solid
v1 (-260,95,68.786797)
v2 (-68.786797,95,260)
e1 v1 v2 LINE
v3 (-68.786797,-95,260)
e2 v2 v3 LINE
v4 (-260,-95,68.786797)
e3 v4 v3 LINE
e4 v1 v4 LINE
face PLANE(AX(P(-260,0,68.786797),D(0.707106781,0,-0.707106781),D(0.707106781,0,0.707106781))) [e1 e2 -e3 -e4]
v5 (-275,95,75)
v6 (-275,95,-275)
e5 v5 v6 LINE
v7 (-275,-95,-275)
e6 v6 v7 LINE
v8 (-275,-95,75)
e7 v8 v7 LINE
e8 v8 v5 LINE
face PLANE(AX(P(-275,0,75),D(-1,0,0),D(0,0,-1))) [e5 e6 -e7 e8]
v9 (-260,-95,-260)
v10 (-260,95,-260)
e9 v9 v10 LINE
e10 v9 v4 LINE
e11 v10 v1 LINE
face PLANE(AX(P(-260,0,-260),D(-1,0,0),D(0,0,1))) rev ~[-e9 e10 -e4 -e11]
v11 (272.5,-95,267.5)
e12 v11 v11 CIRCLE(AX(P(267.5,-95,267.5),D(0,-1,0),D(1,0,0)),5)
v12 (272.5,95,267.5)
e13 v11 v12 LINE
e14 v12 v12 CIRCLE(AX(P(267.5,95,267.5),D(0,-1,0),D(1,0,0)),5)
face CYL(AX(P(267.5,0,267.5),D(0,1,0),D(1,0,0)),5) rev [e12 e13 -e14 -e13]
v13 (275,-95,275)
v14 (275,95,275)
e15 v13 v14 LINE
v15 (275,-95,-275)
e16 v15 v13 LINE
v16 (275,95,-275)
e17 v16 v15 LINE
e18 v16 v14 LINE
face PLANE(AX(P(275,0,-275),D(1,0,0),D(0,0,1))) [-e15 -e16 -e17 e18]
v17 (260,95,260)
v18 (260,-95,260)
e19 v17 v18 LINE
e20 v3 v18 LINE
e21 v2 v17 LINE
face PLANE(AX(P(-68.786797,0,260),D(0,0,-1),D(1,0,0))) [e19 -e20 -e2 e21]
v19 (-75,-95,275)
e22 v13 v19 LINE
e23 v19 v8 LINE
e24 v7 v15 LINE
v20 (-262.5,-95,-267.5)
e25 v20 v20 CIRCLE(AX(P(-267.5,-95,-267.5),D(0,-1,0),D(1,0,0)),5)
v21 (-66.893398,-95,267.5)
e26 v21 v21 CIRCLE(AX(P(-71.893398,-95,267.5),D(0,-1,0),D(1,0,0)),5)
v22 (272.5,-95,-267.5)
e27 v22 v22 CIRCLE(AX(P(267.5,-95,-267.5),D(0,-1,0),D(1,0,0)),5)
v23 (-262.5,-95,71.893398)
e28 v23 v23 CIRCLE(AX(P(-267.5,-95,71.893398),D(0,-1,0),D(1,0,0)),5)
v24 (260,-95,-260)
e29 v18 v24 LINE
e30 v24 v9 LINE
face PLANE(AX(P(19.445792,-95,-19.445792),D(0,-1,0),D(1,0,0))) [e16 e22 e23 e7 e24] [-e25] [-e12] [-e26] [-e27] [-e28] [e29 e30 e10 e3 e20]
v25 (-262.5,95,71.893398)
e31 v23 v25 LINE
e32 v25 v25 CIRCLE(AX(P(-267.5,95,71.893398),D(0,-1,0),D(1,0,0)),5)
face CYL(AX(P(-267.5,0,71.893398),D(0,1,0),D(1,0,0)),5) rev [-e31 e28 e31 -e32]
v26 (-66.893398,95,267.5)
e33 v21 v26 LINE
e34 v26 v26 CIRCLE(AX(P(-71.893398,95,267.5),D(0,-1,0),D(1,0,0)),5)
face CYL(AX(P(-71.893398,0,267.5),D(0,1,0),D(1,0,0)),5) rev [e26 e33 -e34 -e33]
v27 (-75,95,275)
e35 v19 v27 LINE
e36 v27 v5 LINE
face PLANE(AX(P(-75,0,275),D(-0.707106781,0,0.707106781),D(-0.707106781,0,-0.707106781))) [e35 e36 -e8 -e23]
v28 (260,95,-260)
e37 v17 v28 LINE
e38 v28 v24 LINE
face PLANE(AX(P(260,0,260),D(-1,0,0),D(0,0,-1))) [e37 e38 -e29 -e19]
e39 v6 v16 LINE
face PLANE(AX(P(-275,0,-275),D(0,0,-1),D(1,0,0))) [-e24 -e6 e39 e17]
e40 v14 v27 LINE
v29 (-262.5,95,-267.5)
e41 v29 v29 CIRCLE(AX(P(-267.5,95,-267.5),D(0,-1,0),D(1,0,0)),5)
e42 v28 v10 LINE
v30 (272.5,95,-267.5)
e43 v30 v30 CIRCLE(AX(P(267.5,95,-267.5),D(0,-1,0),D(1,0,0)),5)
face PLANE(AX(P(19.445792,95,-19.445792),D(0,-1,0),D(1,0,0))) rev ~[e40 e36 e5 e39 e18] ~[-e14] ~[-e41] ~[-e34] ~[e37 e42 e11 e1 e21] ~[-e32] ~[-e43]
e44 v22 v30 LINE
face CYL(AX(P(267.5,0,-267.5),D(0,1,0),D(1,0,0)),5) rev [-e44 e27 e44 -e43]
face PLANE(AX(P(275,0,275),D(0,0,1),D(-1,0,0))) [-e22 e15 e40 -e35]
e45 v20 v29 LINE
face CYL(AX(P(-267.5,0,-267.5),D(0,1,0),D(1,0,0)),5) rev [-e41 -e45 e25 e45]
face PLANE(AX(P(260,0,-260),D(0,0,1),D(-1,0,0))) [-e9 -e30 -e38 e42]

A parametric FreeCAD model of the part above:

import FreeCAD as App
import Part
import Sketcher
from FreeCAD import Vector
Q = App.Units.Quantity

doc = App.newDocument("Part")
body = doc.addObject("PartDesign::Body", "Body")

sketch1 = doc.addObject("Sketcher::SketchObject", "Sketch")
body.addObject(sketch1)
sketch1.AttachmentSupport = (doc.XZ_Plane, [""])
sketch1.MapMode = "FlatFace"
sketch1.addGeometry([
    Part.LineSegment(Vector(-275, 75, 0), Vector(-275, -275, 0)),
    Part.LineSegment(Vector(-275, -275, 0), Vector(275, -275, 0)),
    Part.LineSegment(Vector(275, -275, 0), Vector(275, 275, 0)),
    Part.LineSegment(Vector(275, 275, 0), Vector(-75, 275, 0)),
    Part.LineSegment(Vector(-75, 275, 0), Vector(-275, 75, 0)),
    Part.Circle(Vector(-268, -268, 0), Vector(0, 0, 1), 5),
    Part.Circle(Vector(268, -268, 0), Vector(0, 0, 1), 5),
    Part.Circle(Vector(-268, 72, 0), Vector(0, 0, 1), 5),
    Part.Circle(Vector(-72, 268, 0), Vector(0, 0, 1), 5),
    Part.LineSegment(Vector(260, 260, 0), Vector(260, -260, 0)),
    Part.LineSegment(Vector(260, -260, 0), Vector(-260, -260, 0)),
    Part.LineSegment(Vector(-260, -260, 0), Vector(-260, 69, 0)),
    Part.LineSegment(Vector(-260, 69, 0), Vector(-69, 260, 0)),
    Part.LineSegment(Vector(-69, 260, 0), Vector(260, 260, 0)),
    Part.Circle(Vector(268, 268, 0), Vector(0, 0, 1), 5),
], False)
sketch1.addConstraint([
    Sketcher.Constraint("Coincident", 0, 2, 1, 1),
    Sketcher.Constraint("Coincident", 1, 2, 2, 1),
    Sketcher.Constraint("Coincident", 2, 2, 3, 1),
    Sketcher.Constraint("Coincident", 3, 2, 4, 1),
    Sketcher.Constraint("Coincident", 4, 2, 0, 1),
    Sketcher.Constraint("Coincident", 9, 2, 10, 1),
    Sketcher.Constraint("Coincident", 10, 2, 11, 1),
    Sketcher.Constraint("Coincident", 11, 2, 12, 1),
    Sketcher.Constraint("Coincident", 12, 2, 13, 1),
    Sketcher.Constraint("Coincident", 13, 2, 9, 1),
    Sketcher.Constraint("Vertical", 0),
    Sketcher.Constraint("Horizontal", 1),
    Sketcher.Constraint("Vertical", 2),
    Sketcher.Constraint("Horizontal", 3),
    Sketcher.Constraint("Vertical", 9),
    Sketcher.Constraint("Horizontal", 10),
    Sketcher.Constraint("Vertical", 11),
    Sketcher.Constraint("Horizontal", 13),
    Sketcher.Constraint("Equal", 5, 6),
    Sketcher.Constraint("Equal", 6, 7),
    Sketcher.Constraint("Equal", 7, 8),
    Sketcher.Constraint("Equal", 8, 14),
    Sketcher.Constraint("Symmetric", 5, 3, 14, 3, -1, 1),
    Sketcher.Constraint("Symmetric", 0, 2, 2, 2, -1, 1),
    Sketcher.Constraint("Symmetric", 10, 2, 13, 2, -1, 1),
    Sketcher.Constraint("Symmetric", 5, 3, 6, 3, -2),
    Sketcher.Constraint("Parallel", 4, 12),
    Sketcher.Constraint("Horizontal", 8, 3, 14, 3),
    Sketcher.Constraint("Vertical", 5, 3, 7, 3),
    Sketcher.Constraint("Equal", 3, 0),
    Sketcher.Constraint("Equal", 1, 2),
    Sketcher.Constraint("Equal", 10, 9),
    Sketcher.Constraint("Diameter", 5, Q("10 mm")),
    Sketcher.Constraint("DistanceX", 1, 1, 1, 2, Q("550 mm")),
    Sketcher.Constraint("DistanceX", 3, 2, 3, 1, Q("350 mm")),
    Sketcher.Constraint("DistanceX", 10, 2, 10, 1, Q("520 mm")),
    Sketcher.Constraint("DistanceX", 5, 3, 6, 3, Q("535 mm")),
    Sketcher.Constraint("DistanceY", 5, 3, 8, 3, Q("535 mm")),
    Sketcher.Constraint("DistanceY", -1, 1, 7, 3, Q("71.893398 mm")),
    Sketcher.Constraint("DistanceX", 8, 3, -1, 1, Q("71.893398 mm")),
    Sketcher.Constraint("DistanceY", 11, 2, 7, 3, Q("3.106602 mm")),
])
pad1 = doc.addObject("PartDesign::Pad", "Pad")
body.addObject(pad1)
pad1.Profile = sketch1
pad1.Length = 190
pad1.Midplane = True

doc.recompute()
